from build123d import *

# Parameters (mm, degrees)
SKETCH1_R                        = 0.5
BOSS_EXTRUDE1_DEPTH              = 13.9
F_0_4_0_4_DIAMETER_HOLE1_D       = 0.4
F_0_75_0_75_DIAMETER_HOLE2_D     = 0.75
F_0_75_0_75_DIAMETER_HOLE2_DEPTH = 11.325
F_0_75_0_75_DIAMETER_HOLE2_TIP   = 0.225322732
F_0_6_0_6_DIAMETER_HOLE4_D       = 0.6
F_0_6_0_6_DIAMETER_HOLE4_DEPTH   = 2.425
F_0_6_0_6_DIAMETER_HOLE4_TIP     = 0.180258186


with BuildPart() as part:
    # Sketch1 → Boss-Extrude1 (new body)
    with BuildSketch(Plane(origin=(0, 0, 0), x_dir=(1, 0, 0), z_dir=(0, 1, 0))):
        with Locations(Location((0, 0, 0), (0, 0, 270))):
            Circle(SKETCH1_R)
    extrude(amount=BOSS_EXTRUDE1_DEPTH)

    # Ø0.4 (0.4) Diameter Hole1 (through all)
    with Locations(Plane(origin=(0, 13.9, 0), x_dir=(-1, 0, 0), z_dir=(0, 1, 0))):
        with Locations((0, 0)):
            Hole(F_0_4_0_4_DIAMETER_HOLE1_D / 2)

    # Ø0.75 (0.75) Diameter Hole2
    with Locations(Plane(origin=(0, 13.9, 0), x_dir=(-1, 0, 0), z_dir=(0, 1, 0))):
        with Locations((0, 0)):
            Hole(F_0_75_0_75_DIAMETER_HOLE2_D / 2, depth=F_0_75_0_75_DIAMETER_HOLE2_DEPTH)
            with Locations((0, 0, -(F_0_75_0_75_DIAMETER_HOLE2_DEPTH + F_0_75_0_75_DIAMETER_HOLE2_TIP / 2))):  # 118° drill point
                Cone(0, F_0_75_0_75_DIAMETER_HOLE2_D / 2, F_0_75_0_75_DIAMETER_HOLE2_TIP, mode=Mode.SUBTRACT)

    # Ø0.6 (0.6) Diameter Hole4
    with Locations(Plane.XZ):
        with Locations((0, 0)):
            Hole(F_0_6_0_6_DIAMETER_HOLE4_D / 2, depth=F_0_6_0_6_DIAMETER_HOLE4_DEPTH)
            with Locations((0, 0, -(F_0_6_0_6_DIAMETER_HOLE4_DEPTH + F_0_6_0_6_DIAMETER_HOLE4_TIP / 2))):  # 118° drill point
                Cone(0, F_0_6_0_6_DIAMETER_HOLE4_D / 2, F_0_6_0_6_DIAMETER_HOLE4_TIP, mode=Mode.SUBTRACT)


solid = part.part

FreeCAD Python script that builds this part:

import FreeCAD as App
import Part
import Sketcher
from FreeCAD import Vector

doc = App.newDocument("Part")
params = doc.addObject("Spreadsheet::Sheet", "Params")
for row, (alias, value) in enumerate([
    ("sketch1_diameter", "1 mm"),
    ("pad1_length", "13.9 mm"),
    ("sketch2_diameter", "0.4 mm"),
    ("hole_diameter", "0.4 mm"),
    ("sketch3_diameter", "0.75 mm"),
    ("hole2_diameter", "0.75 mm"),
    ("hole2_depth", "11.325 mm"),
    ("sketch4_diameter", "0.6 mm"),
    ("hole3_diameter", "0.6 mm"),
    ("hole3_depth", "2.425 mm"),
], start=1):
    params.set(f"A{row}", alias)
    params.set(f"B{row}", "=" + value)
    params.setAlias(f"B{row}", alias)

body = doc.addObject("PartDesign::Body", "Body")

# Sketch on XZ plane
sketch1 = body.newObject("Sketcher::SketchObject", "Sketch")
sketch1.AttachmentSupport = (doc.getObject("XZ_Plane"), [""])
sketch1.MapMode = "FlatFace"
sketch1.addGeometry(Part.Circle(Vector(0, 0, 0), Vector(0, 0, 1), 0.5), False)
sketch1.addConstraint([
    Sketcher.Constraint("Coincident", 0, 3, -1, 1),
    Sketcher.Constraint("Diameter", 0, 1.0),
])
sketch1.setExpression("Constraints[1]", "Params.sketch1_diameter")
pad1 = body.newObject("PartDesign::Pad", "Pad")
pad1.Profile = sketch1
pad1.setExpression("Length", "Params.pad1_length")
pad1.Reversed = True

# Sketch on XZ plane
sketch2 = body.newObject("Sketcher::SketchObject", "Sketch001")
sketch2.AttachmentSupport = (doc.getObject("XZ_Plane"), [""])
sketch2.MapMode = "FlatFace"
sketch2.AttachmentOffset = App.Placement(Vector(0, 0, -13.9), App.Rotation())
sketch2.addGeometry(Part.Circle(Vector(0, 0, 0), Vector(0, 0, 1), 0.2), False)
sketch2.addConstraint([
    Sketcher.Constraint("Coincident", 0, 3, -1, 1),
    Sketcher.Constraint("Diameter", 0, 0.4),
])
sketch2.setExpression("Constraints[1]", "Params.sketch2_diameter")
doc.recompute()
hole = body.newObject("PartDesign::Hole", "Hole")
hole.Profile = sketch2
hole.ThreadType = "None"
hole.setExpression("Diameter", "Params.hole_diameter")
hole.DepthType = "ThroughAll"
hole.Reversed = True

# Sketch on XZ plane
sketch3 = body.newObject("Sketcher::SketchObject", "Sketch002")
sketch3.AttachmentSupport = (doc.getObject("XZ_Plane"), [""])
sketch3.MapMode = "FlatFace"
sketch3.AttachmentOffset = App.Placement(Vector(0, 0, -13.9), App.Rotation())
sketch3.addGeometry(Part.Circle(Vector(0, 0, 0), Vector(0, 0, 1), 0.38), False)
sketch3.addConstraint([
    Sketcher.Constraint("Coincident", 0, 3, -1, 1),
    Sketcher.Constraint("Diameter", 0, 0.75),
])
sketch3.setExpression("Constraints[1]", "Params.sketch3_diameter")
doc.recompute()
hole2 = body.newObject("PartDesign::Hole", "Hole001")
hole2.Profile = sketch3
hole2.ThreadType = "None"
hole2.setExpression("Diameter", "Params.hole2_diameter")
hole2.DepthType = "Dimension"
hole2.setExpression("Depth", "Params.hole2_depth")
hole2.DrillPoint = "Angled"
hole2.DrillPointAngle = 118
hole2.Reversed = True

# Sketch on XZ plane
sketch4 = body.newObject("Sketcher::SketchObject", "Sketch003")
sketch4.AttachmentSupport = (doc.getObject("XZ_Plane"), [""])
sketch4.MapMode = "FlatFace"
sketch4.addGeometry(Part.Circle(Vector(0, 0, 0), Vector(0, 0, 1), 0.3), False)
sketch4.addConstraint([
    Sketcher.Constraint("Coincident", 0, 3, -1, 1),
    Sketcher.Constraint("Diameter", 0, 0.6),
])
sketch4.setExpression("Constraints[1]", "Params.sketch4_diameter")
doc.recompute()
hole3 = body.newObject("PartDesign::Hole", "Hole002")
hole3.Profile = sketch4
hole3.ThreadType = "None"
hole3.setExpression("Diameter", "Params.hole3_diameter")
hole3.DepthType = "Dimension"
hole3.setExpression("Depth", "Params.hole3_depth")
hole3.DrillPoint = "Angled"
hole3.DrillPointAngle = 118

doc.recompute()
